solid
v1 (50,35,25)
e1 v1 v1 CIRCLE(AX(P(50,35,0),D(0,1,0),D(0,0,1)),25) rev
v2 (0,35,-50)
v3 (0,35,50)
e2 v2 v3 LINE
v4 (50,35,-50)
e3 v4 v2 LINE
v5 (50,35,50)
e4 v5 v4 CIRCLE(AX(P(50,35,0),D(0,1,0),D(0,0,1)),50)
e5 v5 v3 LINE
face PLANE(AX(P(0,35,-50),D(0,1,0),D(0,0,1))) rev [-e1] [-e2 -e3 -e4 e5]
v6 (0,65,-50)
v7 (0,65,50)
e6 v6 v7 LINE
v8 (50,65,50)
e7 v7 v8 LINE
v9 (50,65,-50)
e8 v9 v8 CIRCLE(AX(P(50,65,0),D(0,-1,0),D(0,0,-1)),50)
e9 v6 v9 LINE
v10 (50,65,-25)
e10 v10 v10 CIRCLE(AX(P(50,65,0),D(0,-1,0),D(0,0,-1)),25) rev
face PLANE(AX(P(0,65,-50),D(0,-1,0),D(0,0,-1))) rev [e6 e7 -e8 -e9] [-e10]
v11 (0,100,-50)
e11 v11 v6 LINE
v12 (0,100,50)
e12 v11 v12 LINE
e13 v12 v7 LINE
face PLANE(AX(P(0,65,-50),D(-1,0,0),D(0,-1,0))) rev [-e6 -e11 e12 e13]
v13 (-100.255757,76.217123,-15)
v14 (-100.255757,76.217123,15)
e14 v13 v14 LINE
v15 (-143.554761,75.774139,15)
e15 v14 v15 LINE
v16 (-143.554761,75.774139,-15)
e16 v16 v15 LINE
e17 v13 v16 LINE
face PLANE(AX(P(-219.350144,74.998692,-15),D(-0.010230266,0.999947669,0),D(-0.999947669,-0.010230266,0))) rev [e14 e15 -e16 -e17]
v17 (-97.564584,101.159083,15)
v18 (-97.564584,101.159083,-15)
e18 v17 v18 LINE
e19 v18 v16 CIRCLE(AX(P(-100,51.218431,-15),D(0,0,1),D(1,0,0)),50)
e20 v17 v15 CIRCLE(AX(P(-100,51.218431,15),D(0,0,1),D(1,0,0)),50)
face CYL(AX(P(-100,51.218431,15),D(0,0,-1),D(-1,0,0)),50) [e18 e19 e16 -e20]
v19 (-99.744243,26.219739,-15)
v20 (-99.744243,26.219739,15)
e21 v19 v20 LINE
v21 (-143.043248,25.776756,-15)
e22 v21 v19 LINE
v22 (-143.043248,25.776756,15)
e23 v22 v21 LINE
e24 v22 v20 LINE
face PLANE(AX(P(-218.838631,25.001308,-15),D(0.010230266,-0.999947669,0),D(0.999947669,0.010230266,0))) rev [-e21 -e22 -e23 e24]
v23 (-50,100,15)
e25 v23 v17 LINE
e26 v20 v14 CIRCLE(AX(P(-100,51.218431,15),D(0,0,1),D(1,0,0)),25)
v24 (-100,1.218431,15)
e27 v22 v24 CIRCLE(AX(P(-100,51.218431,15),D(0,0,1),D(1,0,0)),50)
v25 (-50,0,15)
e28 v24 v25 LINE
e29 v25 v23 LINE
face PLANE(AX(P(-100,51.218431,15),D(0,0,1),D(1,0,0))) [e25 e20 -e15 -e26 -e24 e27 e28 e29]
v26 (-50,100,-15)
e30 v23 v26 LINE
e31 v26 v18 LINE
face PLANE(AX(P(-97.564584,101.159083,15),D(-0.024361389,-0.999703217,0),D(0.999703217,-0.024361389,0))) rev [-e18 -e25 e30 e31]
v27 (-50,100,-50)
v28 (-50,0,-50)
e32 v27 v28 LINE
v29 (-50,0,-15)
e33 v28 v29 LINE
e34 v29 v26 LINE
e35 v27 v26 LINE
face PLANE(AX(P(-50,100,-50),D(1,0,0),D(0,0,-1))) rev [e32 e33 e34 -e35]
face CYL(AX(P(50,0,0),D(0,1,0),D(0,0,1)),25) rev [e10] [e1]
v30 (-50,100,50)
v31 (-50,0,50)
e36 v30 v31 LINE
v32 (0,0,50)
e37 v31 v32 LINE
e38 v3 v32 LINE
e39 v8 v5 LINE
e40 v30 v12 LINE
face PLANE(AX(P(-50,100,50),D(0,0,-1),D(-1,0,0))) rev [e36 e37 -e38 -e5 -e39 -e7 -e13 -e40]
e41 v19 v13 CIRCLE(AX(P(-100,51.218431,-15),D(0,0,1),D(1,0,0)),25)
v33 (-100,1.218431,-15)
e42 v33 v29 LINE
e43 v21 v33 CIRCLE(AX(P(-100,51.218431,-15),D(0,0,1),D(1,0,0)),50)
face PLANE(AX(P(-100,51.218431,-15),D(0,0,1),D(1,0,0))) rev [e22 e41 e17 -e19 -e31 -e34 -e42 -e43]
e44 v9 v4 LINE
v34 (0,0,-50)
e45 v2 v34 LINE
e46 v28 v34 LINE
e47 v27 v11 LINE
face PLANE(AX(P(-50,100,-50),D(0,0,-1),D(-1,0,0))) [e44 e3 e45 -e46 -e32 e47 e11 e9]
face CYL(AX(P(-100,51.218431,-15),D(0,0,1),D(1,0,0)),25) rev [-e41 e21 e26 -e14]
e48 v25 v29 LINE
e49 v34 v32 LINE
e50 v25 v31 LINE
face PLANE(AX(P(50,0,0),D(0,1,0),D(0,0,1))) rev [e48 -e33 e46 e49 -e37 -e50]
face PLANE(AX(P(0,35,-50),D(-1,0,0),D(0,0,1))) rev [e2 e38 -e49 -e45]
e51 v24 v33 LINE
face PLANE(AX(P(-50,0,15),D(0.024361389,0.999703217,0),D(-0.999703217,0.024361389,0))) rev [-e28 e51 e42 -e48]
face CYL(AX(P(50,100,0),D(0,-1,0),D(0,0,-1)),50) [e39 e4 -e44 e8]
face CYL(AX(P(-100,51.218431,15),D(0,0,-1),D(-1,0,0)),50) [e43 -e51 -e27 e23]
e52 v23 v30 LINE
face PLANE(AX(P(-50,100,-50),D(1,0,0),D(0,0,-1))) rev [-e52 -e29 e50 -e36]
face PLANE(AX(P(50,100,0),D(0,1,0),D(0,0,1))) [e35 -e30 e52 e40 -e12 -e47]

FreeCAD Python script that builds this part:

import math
import FreeCAD as App
import Part
import Sketcher

V = App.Vector
Q = App.Units.Quantity

doc = App.newDocument("Part")
params = doc.addObject("Spreadsheet::Sheet", "Params")
for row, (alias, value) in enumerate([
    ("sketch1_radius", "50 mm"),
    ("pad1_length", "100 mm"),
    ("sketch2_diameter", "50 mm"),
    ("pocket1_length", "100 mm"),
    ("sketch3_height", "35 mm"),
    ("pocket2_length", "100 mm"),
    ("sketch4_radius", "50 mm"),
    ("sketch4_height", "100 mm"),
    ("pad2_length", "30 mm"),
    ("sketch5_diameter", "50 mm"),
    ("pocket3_length", "30 mm"),
    ("sketch6_length", "50 mm"),
    ("pocket4_length", "30 mm"),
], start=1):
    params.set(f"A{row}", alias)
    params.set(f"B{row}", "=" + value)
    params.setAlias(f"B{row}", alias)

body = doc.addObject("PartDesign::Body", "Body")

sketch1 = body.newObject("Sketcher::SketchObject", "Sketch")
sketch1.AttachmentSupport = (doc.getObject("XZ_Plane"), [""])
sketch1.MapMode = "FlatFace"
sketch1.addGeometry(Part.LineSegment(V(50, -50, 0), V(-50, -50, 0)), False)
sketch1.addGeometry(Part.LineSegment(V(-50, -50, 0), V(-50, 50, 0)), False)
sketch1.addGeometry(Part.LineSegment(V(-50, 50, 0), V(50, 50, 0)), False)
sketch1.addGeometry(Part.ArcOfCircle(Part.Circle(V(50, 0, 0), V(0, 0, 1), 50), math.radians(-90), math.radians(90)), False)
sketch1.addConstraint(Sketcher.Constraint("Coincident", 0, 2, 1, 1))
sketch1.addConstraint(Sketcher.Constraint("Coincident", 1, 2, 2, 1))
sketch1.addConstraint(Sketcher.Constraint("Tangent", 2, 2, 3, 2))
sketch1.addConstraint(Sketcher.Constraint("Tangent", 3, 1, 0, 1))
sketch1.addConstraint(Sketcher.Constraint("Horizontal", 0))
sketch1.addConstraint(Sketcher.Constraint("Vertical", 1))
sketch1.addConstraint(Sketcher.Constraint("Horizontal", 2))
sketch1.addConstraint(Sketcher.Constraint("Symmetric", 0, 2, 2, 2, -1, 1))
sketch1.addConstraint(Sketcher.Constraint("Equal", 2, 1))
sketch1.addConstraint(Sketcher.Constraint("Radius", 3, Q("50 mm")))
sketch1.setExpression("Constraints[9]", "Params.sketch1_radius")
pad1 = body.newObject("PartDesign::Pad", "Pad")
pad1.Profile = sketch1
pad1.setExpression("Length", "Params.pad1_length")
pad1.Reversed = True

sketch2 = body.newObject("Sketcher::SketchObject", "Sketch001")
sketch2.AttachmentSupport = (doc.getObject("XZ_Plane"), [""])
sketch2.MapMode = "FlatFace"
sketch2.AttachmentOffset = App.Placement(V(0, 0, -100), App.Rotation())
sketch2.addGeometry(Part.Circle(V(50, 0, 0), V(0, 0, 1), 25), False)
sketch2.addConstraint(Sketcher.Constraint("PointOnObject", 0, 3, -1))
sketch2.addConstraint(Sketcher.Constraint("Diameter", 0, Q("50 mm")))
sketch2.addConstraint(Sketcher.Constraint("DistanceX", -1, 1, 0, 3, Q("50 mm")))
sketch2.setExpression("Constraints[1]", "Params.sketch2_diameter")
pocket1 = body.newObject("PartDesign::Pocket", "Pocket")
pocket1.Profile = sketch2
pocket1.setExpression("Length", "Params.pocket1_length")
pocket1.Reversed = True

sketch3 = body.newObject("Sketcher::SketchObject", "Sketch002")
sketch3.AttachmentSupport = (doc.getObject("XY_Plane"), [""])
sketch3.MapMode = "FlatFace"
sketch3.AttachmentOffset = App.Placement(V(0, 0, 50), App.Rotation())
sketch3.addGeometry(Part.LineSegment(V(0, 35, 0), V(0, 0, 0)), False)
sketch3.addGeometry(Part.LineSegment(V(0, 0, 0), V(100.520268, 0, 0)), False)
sketch3.addGeometry(Part.LineSegment(V(100.520268, 0, 0), V(100.520268, 35, 0)), False)
sketch3.addGeometry(Part.LineSegment(V(100.520268, 35, 0), V(0, 35, 0)), False)
sketch3.addGeometry(Part.LineSegment(V(0, 100, 0), V(0, 65, 0)), False)
sketch3.addGeometry(Part.LineSegment(V(0, 65, 0), V(100.520268, 65, 0)), False)
sketch3.addGeometry(Part.LineSegment(V(100.520268, 65, 0), V(100.520268, 100, 0)), False)
sketch3.addGeometry(Part.LineSegment(V(100.520268, 100, 0), V(0, 100, 0)), False)
sketch3.addConstraint(Sketcher.Constraint("Coincident", 0, 2, 1, 1))
sketch3.addConstraint(Sketcher.Constraint("Coincident", 1, 2, 2, 1))
sketch3.addConstraint(Sketcher.Constraint("Coincident", 2, 2, 3, 1))
sketch3.addConstraint(Sketcher.Constraint("Coincident", 3, 2, 0, 1))
sketch3.addConstraint(Sketcher.Constraint("Coincident", 4, 2, 5, 1))
sketch3.addConstraint(Sketcher.Constraint("Coincident", 5, 2, 6, 1))
sketch3.addConstraint(Sketcher.Constraint("Coincident", 6, 2, 7, 1))
sketch3.addConstraint(Sketcher.Constraint("Coincident", 7, 2, 4, 1))
sketch3.addConstraint(Sketcher.Constraint("Vertical", 0))
sketch3.addConstraint(Sketcher.Constraint("Horizontal", 1))
sketch3.addConstraint(Sketcher.Constraint("Vertical", 2))
sketch3.addConstraint(Sketcher.Constraint("Horizontal", 3))
sketch3.addConstraint(Sketcher.Constraint("Vertical", 4))
sketch3.addConstraint(Sketcher.Constraint("Horizontal", 5))
sketch3.addConstraint(Sketcher.Constraint("Vertical", 6))
sketch3.addConstraint(Sketcher.Constraint("Horizontal", 7))
sketch3.addConstraint(Sketcher.Constraint("Coincident", 0, 2, -1, 1))
sketch3.addConstraint(Sketcher.Constraint("PointOnObject", 4, 2, -2))
sketch3.addConstraint(Sketcher.Constraint("Vertical", 2, 2, 5, 2))
sketch3.addConstraint(Sketcher.Constraint("Equal", 2, 4))
sketch3.addConstraint(Sketcher.Constraint("DistanceY", 0, 2, 0, 1, Q("35 mm")))
sketch3.addConstraint(Sketcher.Constraint("DistanceY", -1, 1, 4, 2, Q("65 mm")))
sketch3.addConstraint(Sketcher.Constraint("DistanceX", 1, 1, 1, 2, Q("100.520268 mm")))
sketch3.setExpression("Constraints[20]", "Params.sketch3_height")
pocket2 = body.newObject("PartDesign::Pocket", "Pocket001")
pocket2.Profile = sketch3
pocket2.setExpression("Length", "Params.pocket2_length")

sketch4 = body.newObject("Sketcher::SketchObject", "Sketch003")
sketch4.AttachmentSupport = (doc.getObject("XY_Plane"), [""])
sketch4.MapMode = "FlatFace"
sketch4.addGeometry(Part.LineSegment(V(-50, 100, 0), V(-97.564584, 101.159083, 0)), False)
sketch4.addGeometry(Part.ArcOfCircle(Part.Circle(V(-100, 51.218431, 0), V(0, 0, 1), 50), math.radians(87.208114), math.radians(270)), False)
sketch4.addGeometry(Part.LineSegment(V(-100, 1.218431, 0), V(-50, 0, 0)), False)
sketch4.addGeometry(Part.LineSegment(V(-50, 0, 0), V(-50, 100, 0)), False)
sketch4.addConstraint(Sketcher.Constraint("Coincident", 0, 2, 1, 1))
sketch4.addConstraint(Sketcher.Constraint("Coincident", 1, 2, 2, 1))
sketch4.addConstraint(Sketcher.Constraint("Coincident", 2, 2, 3, 1))
sketch4.addConstraint(Sketcher.Constraint("Coincident", 3, 2, 0, 1))
sketch4.addConstraint(Sketcher.Constraint("Vertical", 3))
sketch4.addConstraint(Sketcher.Constraint("PointOnObject", 2, 2, -1))
sketch4.addConstraint(Sketcher.Constraint("Parallel", 0, 2))
sketch4.addConstraint(Sketcher.Constraint("Radius", 1, Q("50 mm")))
sketch4.addConstraint(Sketcher.Constraint("DistanceY", 3, 1, 3, 2, Q("100 mm")))
sketch4.addConstraint(Sketcher.Constraint("DistanceX", 1, 3, -1, 1, Q("100 mm")))
sketch4.addConstraint(Sketcher.Constraint("DistanceX", 1, 2, -1, 1, Q("100 mm")))
sketch4.addConstraint(Sketcher.Constraint("DistanceX", 2, 2, -1, 1, Q("50 mm")))
sketch4.addConstraint(Sketcher.Constraint("DistanceY", -1, 1, 1, 3, Q("51.218431 mm")))
sketch4.setExpression("Constraints[7]", "Params.sketch4_radius")
sketch4.setExpression("Constraints[8]", "Params.sketch4_height")
pad2 = body.newObject("PartDesign::Pad", "Pad001")
pad2.Profile = sketch4
pad2.setExpression("Length", "Params.pad2_length")
pad2.Midplane = True

sketch5 = body.newObject("Sketcher::SketchObject", "Sketch004")
sketch5.AttachmentSupport = (doc.getObject("XY_Plane"), [""])
sketch5.MapMode = "FlatFace"
sketch5.AttachmentOffset = App.Placement(V(0, 0, 15), App.Rotation())
sketch5.addGeometry(Part.Circle(V(-100, 51.218431, 0), V(0, 0, 1), 25), False)
sketch5.addConstraint(Sketcher.Constraint("Diameter", 0, Q("50 mm")))
sketch5.addConstraint(Sketcher.Constraint("DistanceX", 0, 3, -1, 1, Q("100 mm")))
sketch5.addConstraint(Sketcher.Constraint("DistanceY", -1, 1, 0, 3, Q("51.218431 mm")))
sketch5.setExpression("Constraints[0]", "Params.sketch5_diameter")
pocket3 = body.newObject("PartDesign::Pocket", "Pocket002")
pocket3.Profile = sketch5
pocket3.setExpression("Length", "Params.pocket3_length")

sketch6 = body.newObject("Sketcher::SketchObject", "Sketch005")
sketch6.AttachmentSupport = (doc.getObject("XY_Plane"), [""])
sketch6.MapMode = "FlatFace"
sketch6.AttachmentOffset = App.Placement(V(0, 0, 15), App.Rotation())
sketch6.addGeometry(Part.LineSegment(V(-218.838631, 25.001308, 0), V(-99.744243, 26.219739, 0)), False)
sketch6.addGeometry(Part.LineSegment(V(-99.744243, 26.219739, 0), V(-100.255757, 76.217123, 0)), False)
sketch6.addGeometry(Part.LineSegment(V(-100.255757, 76.217123, 0), V(-219.350144, 74.998692, 0)), False)
sketch6.addGeometry(Part.LineSegment(V(-219.350144, 74.998692, 0), V(-218.838631, 25.001308, 0)), False)
sketch6.addConstraint(Sketcher.Constraint("Coincident", 0, 2, 1, 1))
sketch6.addConstraint(Sketcher.Constraint("Coincident", 1, 2, 2, 1))
sketch6.addConstraint(Sketcher.Constraint("Coincident", 2, 2, 3, 1))
sketch6.addConstraint(Sketcher.Constraint("Coincident", 3, 2, 0, 1))
sketch6.addConstraint(Sketcher.Constraint("Perpendicular", 0, 1))
sketch6.addConstraint(Sketcher.Constraint("Perpendicular", 1, 2))
sketch6.addConstraint(Sketcher.Constraint("Perpendicular", 2, 3))
sketch6.addConstraint(Sketcher.Constraint("Distance", 1, Q("50 mm")))
sketch6.addConstraint(Sketcher.Constraint("DistanceX", 2, 2, 0, 2, Q("119.605901 mm")))
sketch6.addConstraint(Sketcher.Constraint("Distance", 0, Q("119.10062 mm")))
sketch6.addConstraint(Sketcher.Constraint("DistanceY", -1, 1, 0, 2, Q("26.219739 mm")))
sketch6.addConstraint(Sketcher.Constraint("DistanceX", 3, 2, -1, 1, Q("218.838631 mm")))
sketch6.setExpression("Constraints[7]", "Params.sketch6_length")
pocket4 = body.newObject("PartDesign::Pocket", "Pocket003")
pocket4.Profile = sketch6
pocket4.setExpression("Length", "Params.pocket4_length")

doc.recompute()
